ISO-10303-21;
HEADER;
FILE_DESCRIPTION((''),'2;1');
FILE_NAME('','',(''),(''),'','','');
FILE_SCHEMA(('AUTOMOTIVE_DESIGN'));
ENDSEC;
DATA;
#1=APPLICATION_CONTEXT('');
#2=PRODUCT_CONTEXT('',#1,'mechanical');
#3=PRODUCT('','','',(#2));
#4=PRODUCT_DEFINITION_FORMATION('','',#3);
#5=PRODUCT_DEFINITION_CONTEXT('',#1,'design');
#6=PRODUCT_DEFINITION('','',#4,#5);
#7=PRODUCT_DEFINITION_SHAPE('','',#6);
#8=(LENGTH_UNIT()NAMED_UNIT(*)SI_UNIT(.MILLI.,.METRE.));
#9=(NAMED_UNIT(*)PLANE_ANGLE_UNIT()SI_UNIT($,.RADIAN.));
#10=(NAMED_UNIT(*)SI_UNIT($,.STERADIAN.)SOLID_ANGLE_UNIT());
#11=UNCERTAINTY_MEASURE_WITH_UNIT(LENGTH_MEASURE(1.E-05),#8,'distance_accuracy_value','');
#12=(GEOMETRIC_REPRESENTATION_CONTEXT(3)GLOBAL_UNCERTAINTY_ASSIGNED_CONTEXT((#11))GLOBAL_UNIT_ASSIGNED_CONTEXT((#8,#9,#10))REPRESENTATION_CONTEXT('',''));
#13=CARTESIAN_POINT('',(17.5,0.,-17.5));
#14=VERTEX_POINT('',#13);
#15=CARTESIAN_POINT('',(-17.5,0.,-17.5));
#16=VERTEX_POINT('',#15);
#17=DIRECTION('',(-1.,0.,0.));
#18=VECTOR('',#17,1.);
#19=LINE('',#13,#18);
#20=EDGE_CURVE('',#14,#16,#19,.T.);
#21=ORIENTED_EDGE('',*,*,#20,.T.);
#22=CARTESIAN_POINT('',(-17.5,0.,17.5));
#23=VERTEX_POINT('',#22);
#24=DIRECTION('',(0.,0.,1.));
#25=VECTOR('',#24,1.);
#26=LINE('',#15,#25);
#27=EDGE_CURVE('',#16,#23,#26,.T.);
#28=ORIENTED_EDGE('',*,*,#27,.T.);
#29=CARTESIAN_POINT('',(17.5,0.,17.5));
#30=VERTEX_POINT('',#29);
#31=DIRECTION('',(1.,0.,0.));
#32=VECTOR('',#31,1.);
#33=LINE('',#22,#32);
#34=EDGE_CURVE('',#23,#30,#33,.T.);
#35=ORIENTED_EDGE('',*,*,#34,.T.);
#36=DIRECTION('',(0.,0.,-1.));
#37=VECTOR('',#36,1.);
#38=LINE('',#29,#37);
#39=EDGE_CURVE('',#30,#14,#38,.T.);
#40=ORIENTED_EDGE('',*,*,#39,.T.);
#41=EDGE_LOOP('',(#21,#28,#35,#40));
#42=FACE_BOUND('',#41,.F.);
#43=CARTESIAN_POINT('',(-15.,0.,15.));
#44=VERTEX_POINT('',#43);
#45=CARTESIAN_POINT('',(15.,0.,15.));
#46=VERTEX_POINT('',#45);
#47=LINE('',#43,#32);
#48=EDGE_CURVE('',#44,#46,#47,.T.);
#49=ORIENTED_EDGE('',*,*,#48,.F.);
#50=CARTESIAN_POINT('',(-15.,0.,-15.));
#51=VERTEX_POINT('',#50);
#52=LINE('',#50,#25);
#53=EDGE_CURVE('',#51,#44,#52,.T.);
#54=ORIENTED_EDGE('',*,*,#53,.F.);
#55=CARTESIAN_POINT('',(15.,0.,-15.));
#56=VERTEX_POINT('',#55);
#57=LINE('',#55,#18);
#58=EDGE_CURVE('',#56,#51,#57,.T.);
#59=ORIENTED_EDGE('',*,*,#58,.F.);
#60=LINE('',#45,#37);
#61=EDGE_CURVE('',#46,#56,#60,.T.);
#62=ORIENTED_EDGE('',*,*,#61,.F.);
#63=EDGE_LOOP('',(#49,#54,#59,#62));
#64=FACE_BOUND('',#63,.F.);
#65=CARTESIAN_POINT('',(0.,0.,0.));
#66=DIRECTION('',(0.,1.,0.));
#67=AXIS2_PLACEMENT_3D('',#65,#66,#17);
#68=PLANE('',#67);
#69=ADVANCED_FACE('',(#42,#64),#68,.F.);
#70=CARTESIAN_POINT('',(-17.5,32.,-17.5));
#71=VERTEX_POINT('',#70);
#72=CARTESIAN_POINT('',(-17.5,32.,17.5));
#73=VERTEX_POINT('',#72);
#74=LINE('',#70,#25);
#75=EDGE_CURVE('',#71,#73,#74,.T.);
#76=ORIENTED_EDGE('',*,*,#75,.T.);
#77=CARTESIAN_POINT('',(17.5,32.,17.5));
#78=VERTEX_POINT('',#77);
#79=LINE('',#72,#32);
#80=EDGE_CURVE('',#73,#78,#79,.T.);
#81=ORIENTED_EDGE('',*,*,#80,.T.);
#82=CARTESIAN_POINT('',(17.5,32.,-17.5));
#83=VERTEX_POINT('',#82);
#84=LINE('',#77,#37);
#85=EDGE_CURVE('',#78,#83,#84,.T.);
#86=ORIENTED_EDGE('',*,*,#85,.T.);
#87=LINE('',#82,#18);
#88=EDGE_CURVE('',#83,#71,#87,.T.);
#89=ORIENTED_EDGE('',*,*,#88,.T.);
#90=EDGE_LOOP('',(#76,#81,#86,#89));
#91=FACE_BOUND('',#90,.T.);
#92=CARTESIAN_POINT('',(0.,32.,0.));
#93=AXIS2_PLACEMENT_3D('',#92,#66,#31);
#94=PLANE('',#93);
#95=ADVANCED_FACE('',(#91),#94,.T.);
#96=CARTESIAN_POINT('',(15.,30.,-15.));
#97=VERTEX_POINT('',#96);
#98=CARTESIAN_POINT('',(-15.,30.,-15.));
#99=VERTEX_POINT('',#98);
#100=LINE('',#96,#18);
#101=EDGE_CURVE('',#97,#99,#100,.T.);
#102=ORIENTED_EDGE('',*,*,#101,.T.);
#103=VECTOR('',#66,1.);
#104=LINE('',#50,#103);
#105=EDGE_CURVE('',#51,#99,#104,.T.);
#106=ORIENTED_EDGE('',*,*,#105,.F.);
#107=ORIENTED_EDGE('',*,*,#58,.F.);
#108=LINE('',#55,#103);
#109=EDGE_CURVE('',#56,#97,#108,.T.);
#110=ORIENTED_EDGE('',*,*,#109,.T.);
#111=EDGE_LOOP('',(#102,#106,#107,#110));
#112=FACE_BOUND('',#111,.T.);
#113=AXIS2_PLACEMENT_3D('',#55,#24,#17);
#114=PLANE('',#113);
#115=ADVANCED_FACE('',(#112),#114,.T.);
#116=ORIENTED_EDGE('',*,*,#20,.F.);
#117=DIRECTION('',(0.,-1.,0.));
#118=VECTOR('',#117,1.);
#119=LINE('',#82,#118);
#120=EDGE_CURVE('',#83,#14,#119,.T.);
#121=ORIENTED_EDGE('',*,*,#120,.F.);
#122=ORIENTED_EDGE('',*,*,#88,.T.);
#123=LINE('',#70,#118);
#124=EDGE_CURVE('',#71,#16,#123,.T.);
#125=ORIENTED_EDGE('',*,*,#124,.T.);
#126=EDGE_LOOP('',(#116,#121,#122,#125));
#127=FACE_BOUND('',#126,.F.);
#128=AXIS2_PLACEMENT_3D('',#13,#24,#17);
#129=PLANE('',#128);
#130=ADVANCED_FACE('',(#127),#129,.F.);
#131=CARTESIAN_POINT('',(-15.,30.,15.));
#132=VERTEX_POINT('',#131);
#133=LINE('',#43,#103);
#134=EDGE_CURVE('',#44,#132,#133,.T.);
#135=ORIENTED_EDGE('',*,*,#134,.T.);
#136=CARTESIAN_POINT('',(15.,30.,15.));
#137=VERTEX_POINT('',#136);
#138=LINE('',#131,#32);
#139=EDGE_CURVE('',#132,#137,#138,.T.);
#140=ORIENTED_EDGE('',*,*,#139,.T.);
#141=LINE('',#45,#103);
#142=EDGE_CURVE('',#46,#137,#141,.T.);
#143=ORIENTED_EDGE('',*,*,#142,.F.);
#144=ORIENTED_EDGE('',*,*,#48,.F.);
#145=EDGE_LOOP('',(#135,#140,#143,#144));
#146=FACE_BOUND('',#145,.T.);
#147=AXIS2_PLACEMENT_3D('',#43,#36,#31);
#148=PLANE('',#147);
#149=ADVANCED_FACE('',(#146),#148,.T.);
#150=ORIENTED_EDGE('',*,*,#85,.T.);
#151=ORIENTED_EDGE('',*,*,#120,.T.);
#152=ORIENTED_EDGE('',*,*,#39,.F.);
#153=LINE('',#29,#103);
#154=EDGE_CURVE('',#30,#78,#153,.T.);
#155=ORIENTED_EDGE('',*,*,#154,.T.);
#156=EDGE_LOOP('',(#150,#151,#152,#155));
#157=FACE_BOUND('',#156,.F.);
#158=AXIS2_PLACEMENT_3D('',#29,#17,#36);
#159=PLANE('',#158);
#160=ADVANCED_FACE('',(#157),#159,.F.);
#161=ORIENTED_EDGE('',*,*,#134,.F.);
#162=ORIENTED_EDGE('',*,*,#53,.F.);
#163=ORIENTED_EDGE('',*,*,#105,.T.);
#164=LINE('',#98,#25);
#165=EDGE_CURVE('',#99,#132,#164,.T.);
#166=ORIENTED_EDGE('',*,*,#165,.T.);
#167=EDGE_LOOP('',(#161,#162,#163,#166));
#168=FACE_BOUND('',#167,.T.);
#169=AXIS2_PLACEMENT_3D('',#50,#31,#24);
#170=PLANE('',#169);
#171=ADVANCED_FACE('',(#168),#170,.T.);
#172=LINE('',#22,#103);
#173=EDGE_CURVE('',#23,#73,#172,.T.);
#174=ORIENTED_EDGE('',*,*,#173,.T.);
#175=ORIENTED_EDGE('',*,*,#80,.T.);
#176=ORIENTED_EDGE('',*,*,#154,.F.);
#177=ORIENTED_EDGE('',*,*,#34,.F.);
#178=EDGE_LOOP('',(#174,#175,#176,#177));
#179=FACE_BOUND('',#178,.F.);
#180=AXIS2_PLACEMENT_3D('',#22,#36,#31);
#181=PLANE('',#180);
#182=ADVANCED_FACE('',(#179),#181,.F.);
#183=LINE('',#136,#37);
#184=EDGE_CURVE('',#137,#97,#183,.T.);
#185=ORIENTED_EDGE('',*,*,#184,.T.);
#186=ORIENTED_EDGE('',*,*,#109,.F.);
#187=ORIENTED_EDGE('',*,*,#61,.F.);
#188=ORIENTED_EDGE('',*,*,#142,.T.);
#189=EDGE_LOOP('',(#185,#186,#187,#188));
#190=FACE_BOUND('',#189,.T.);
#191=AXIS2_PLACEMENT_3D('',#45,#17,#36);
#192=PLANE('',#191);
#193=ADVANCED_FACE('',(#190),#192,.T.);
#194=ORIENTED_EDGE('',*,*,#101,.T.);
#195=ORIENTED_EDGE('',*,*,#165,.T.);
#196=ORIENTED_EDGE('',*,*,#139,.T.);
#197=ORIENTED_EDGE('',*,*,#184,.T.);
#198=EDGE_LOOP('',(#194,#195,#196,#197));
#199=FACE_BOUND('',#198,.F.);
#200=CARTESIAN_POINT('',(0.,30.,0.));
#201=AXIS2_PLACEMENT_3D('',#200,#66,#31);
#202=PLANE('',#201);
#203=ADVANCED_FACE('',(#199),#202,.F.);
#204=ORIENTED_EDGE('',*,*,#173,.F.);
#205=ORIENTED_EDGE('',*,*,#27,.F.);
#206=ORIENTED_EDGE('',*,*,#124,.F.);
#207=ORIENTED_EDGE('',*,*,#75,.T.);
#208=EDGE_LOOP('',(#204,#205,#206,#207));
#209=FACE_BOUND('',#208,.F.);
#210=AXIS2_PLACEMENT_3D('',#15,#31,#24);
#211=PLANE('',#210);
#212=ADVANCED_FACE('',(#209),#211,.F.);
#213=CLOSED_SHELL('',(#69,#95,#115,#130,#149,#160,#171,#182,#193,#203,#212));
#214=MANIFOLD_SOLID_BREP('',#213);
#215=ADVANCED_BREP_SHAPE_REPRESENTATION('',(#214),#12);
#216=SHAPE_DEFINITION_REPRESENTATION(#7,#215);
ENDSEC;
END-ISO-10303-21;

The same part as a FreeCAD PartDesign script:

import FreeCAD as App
import Part
import Sketcher

V = App.Vector
Q = App.Units.Quantity


def add_polygon(sketch, points):
    """Adds a closed chain of lines whose ends are joined by coincident constraints."""
    first, n = sketch.GeometryCount, len(points)
    for a, b in zip(points, points[1:] + points[:1]):
        sketch.addGeometry(Part.LineSegment(App.Vector(*a, 0), App.Vector(*b, 0)), False)
    for i in range(n):
        sketch.addConstraint(Sketcher.Constraint("Coincident", first + i, 2, first + (i + 1) % n, 1))

doc = App.newDocument("Part")
body = doc.addObject("PartDesign::Body", "Body")

sketch1 = doc.addObject("Sketcher::SketchObject", "Sketch")
body.addObject(sketch1)
sketch1.AttachmentSupport = (doc.XZ_Plane, [""])
sketch1.MapMode = "FlatFace"
add_polygon(sketch1, [(-18, -18), (-18, 18), (18, 18), (18, -18)])
add_polygon(sketch1, [(15, 15), (-15, 15), (-15, -15), (15, -15)])
sketch1.addConstraint([
    Sketcher.Constraint("Vertical", 0),
    Sketcher.Constraint("Horizontal", 1),
    Sketcher.Constraint("Vertical", 2),
    Sketcher.Constraint("Horizontal", 3),
    Sketcher.Constraint("Horizontal", 4),
    Sketcher.Constraint("Vertical", 5),
    Sketcher.Constraint("Horizontal", 6),
    Sketcher.Constraint("Vertical", 7),
    Sketcher.Constraint("Symmetric", 0, 2, 2, 2, -1, 1),
    Sketcher.Constraint("Symmetric", 4, 2, 6, 2, -1, 1),
    Sketcher.Constraint("Equal", 3, 0),
    Sketcher.Constraint("Equal", 6, 5),
    Sketcher.Constraint("DistanceX", 1, 1, 1, 2, Q("35 mm")),
    Sketcher.Constraint("DistanceX", 4, 2, 4, 1, Q("30 mm")),
])
pad1 = doc.addObject("PartDesign::Pad", "Pad")
body.addObject(pad1)
pad1.Profile = sketch1
pad1.Length = 30
pad1.Reversed = True

sketch2 = doc.addObject("Sketcher::SketchObject", "Sketch001")
body.addObject(sketch2)
sketch2.AttachmentSupport = (doc.XZ_Plane, [""])
sketch2.MapMode = "FlatFace"
sketch2.AttachmentOffset = App.Placement(V(0, 0, -30), App.Rotation())
add_polygon(sketch2, [(18, -18), (-18, -18), (-18, 18), (18, 18)])
sketch2.addConstraint([
    Sketcher.Constraint("Horizontal", 0),
    Sketcher.Constraint("Vertical", 1),
    Sketcher.Constraint("Horizontal", 2),
    Sketcher.Constraint("Vertical", 3),
    Sketcher.Constraint("Symmetric", 0, 2, 2, 2, -1, 1),
    Sketcher.Constraint("Equal", 2, 1),
    Sketcher.Constraint("DistanceX", 0, 2, 0, 1, Q("35 mm")),
])
pad2 = doc.addObject("PartDesign::Pad", "Pad001")
body.addObject(pad2)
pad2.Profile = sketch2
pad2.Length = 2
pad2.Reversed = True

doc.recompute()
